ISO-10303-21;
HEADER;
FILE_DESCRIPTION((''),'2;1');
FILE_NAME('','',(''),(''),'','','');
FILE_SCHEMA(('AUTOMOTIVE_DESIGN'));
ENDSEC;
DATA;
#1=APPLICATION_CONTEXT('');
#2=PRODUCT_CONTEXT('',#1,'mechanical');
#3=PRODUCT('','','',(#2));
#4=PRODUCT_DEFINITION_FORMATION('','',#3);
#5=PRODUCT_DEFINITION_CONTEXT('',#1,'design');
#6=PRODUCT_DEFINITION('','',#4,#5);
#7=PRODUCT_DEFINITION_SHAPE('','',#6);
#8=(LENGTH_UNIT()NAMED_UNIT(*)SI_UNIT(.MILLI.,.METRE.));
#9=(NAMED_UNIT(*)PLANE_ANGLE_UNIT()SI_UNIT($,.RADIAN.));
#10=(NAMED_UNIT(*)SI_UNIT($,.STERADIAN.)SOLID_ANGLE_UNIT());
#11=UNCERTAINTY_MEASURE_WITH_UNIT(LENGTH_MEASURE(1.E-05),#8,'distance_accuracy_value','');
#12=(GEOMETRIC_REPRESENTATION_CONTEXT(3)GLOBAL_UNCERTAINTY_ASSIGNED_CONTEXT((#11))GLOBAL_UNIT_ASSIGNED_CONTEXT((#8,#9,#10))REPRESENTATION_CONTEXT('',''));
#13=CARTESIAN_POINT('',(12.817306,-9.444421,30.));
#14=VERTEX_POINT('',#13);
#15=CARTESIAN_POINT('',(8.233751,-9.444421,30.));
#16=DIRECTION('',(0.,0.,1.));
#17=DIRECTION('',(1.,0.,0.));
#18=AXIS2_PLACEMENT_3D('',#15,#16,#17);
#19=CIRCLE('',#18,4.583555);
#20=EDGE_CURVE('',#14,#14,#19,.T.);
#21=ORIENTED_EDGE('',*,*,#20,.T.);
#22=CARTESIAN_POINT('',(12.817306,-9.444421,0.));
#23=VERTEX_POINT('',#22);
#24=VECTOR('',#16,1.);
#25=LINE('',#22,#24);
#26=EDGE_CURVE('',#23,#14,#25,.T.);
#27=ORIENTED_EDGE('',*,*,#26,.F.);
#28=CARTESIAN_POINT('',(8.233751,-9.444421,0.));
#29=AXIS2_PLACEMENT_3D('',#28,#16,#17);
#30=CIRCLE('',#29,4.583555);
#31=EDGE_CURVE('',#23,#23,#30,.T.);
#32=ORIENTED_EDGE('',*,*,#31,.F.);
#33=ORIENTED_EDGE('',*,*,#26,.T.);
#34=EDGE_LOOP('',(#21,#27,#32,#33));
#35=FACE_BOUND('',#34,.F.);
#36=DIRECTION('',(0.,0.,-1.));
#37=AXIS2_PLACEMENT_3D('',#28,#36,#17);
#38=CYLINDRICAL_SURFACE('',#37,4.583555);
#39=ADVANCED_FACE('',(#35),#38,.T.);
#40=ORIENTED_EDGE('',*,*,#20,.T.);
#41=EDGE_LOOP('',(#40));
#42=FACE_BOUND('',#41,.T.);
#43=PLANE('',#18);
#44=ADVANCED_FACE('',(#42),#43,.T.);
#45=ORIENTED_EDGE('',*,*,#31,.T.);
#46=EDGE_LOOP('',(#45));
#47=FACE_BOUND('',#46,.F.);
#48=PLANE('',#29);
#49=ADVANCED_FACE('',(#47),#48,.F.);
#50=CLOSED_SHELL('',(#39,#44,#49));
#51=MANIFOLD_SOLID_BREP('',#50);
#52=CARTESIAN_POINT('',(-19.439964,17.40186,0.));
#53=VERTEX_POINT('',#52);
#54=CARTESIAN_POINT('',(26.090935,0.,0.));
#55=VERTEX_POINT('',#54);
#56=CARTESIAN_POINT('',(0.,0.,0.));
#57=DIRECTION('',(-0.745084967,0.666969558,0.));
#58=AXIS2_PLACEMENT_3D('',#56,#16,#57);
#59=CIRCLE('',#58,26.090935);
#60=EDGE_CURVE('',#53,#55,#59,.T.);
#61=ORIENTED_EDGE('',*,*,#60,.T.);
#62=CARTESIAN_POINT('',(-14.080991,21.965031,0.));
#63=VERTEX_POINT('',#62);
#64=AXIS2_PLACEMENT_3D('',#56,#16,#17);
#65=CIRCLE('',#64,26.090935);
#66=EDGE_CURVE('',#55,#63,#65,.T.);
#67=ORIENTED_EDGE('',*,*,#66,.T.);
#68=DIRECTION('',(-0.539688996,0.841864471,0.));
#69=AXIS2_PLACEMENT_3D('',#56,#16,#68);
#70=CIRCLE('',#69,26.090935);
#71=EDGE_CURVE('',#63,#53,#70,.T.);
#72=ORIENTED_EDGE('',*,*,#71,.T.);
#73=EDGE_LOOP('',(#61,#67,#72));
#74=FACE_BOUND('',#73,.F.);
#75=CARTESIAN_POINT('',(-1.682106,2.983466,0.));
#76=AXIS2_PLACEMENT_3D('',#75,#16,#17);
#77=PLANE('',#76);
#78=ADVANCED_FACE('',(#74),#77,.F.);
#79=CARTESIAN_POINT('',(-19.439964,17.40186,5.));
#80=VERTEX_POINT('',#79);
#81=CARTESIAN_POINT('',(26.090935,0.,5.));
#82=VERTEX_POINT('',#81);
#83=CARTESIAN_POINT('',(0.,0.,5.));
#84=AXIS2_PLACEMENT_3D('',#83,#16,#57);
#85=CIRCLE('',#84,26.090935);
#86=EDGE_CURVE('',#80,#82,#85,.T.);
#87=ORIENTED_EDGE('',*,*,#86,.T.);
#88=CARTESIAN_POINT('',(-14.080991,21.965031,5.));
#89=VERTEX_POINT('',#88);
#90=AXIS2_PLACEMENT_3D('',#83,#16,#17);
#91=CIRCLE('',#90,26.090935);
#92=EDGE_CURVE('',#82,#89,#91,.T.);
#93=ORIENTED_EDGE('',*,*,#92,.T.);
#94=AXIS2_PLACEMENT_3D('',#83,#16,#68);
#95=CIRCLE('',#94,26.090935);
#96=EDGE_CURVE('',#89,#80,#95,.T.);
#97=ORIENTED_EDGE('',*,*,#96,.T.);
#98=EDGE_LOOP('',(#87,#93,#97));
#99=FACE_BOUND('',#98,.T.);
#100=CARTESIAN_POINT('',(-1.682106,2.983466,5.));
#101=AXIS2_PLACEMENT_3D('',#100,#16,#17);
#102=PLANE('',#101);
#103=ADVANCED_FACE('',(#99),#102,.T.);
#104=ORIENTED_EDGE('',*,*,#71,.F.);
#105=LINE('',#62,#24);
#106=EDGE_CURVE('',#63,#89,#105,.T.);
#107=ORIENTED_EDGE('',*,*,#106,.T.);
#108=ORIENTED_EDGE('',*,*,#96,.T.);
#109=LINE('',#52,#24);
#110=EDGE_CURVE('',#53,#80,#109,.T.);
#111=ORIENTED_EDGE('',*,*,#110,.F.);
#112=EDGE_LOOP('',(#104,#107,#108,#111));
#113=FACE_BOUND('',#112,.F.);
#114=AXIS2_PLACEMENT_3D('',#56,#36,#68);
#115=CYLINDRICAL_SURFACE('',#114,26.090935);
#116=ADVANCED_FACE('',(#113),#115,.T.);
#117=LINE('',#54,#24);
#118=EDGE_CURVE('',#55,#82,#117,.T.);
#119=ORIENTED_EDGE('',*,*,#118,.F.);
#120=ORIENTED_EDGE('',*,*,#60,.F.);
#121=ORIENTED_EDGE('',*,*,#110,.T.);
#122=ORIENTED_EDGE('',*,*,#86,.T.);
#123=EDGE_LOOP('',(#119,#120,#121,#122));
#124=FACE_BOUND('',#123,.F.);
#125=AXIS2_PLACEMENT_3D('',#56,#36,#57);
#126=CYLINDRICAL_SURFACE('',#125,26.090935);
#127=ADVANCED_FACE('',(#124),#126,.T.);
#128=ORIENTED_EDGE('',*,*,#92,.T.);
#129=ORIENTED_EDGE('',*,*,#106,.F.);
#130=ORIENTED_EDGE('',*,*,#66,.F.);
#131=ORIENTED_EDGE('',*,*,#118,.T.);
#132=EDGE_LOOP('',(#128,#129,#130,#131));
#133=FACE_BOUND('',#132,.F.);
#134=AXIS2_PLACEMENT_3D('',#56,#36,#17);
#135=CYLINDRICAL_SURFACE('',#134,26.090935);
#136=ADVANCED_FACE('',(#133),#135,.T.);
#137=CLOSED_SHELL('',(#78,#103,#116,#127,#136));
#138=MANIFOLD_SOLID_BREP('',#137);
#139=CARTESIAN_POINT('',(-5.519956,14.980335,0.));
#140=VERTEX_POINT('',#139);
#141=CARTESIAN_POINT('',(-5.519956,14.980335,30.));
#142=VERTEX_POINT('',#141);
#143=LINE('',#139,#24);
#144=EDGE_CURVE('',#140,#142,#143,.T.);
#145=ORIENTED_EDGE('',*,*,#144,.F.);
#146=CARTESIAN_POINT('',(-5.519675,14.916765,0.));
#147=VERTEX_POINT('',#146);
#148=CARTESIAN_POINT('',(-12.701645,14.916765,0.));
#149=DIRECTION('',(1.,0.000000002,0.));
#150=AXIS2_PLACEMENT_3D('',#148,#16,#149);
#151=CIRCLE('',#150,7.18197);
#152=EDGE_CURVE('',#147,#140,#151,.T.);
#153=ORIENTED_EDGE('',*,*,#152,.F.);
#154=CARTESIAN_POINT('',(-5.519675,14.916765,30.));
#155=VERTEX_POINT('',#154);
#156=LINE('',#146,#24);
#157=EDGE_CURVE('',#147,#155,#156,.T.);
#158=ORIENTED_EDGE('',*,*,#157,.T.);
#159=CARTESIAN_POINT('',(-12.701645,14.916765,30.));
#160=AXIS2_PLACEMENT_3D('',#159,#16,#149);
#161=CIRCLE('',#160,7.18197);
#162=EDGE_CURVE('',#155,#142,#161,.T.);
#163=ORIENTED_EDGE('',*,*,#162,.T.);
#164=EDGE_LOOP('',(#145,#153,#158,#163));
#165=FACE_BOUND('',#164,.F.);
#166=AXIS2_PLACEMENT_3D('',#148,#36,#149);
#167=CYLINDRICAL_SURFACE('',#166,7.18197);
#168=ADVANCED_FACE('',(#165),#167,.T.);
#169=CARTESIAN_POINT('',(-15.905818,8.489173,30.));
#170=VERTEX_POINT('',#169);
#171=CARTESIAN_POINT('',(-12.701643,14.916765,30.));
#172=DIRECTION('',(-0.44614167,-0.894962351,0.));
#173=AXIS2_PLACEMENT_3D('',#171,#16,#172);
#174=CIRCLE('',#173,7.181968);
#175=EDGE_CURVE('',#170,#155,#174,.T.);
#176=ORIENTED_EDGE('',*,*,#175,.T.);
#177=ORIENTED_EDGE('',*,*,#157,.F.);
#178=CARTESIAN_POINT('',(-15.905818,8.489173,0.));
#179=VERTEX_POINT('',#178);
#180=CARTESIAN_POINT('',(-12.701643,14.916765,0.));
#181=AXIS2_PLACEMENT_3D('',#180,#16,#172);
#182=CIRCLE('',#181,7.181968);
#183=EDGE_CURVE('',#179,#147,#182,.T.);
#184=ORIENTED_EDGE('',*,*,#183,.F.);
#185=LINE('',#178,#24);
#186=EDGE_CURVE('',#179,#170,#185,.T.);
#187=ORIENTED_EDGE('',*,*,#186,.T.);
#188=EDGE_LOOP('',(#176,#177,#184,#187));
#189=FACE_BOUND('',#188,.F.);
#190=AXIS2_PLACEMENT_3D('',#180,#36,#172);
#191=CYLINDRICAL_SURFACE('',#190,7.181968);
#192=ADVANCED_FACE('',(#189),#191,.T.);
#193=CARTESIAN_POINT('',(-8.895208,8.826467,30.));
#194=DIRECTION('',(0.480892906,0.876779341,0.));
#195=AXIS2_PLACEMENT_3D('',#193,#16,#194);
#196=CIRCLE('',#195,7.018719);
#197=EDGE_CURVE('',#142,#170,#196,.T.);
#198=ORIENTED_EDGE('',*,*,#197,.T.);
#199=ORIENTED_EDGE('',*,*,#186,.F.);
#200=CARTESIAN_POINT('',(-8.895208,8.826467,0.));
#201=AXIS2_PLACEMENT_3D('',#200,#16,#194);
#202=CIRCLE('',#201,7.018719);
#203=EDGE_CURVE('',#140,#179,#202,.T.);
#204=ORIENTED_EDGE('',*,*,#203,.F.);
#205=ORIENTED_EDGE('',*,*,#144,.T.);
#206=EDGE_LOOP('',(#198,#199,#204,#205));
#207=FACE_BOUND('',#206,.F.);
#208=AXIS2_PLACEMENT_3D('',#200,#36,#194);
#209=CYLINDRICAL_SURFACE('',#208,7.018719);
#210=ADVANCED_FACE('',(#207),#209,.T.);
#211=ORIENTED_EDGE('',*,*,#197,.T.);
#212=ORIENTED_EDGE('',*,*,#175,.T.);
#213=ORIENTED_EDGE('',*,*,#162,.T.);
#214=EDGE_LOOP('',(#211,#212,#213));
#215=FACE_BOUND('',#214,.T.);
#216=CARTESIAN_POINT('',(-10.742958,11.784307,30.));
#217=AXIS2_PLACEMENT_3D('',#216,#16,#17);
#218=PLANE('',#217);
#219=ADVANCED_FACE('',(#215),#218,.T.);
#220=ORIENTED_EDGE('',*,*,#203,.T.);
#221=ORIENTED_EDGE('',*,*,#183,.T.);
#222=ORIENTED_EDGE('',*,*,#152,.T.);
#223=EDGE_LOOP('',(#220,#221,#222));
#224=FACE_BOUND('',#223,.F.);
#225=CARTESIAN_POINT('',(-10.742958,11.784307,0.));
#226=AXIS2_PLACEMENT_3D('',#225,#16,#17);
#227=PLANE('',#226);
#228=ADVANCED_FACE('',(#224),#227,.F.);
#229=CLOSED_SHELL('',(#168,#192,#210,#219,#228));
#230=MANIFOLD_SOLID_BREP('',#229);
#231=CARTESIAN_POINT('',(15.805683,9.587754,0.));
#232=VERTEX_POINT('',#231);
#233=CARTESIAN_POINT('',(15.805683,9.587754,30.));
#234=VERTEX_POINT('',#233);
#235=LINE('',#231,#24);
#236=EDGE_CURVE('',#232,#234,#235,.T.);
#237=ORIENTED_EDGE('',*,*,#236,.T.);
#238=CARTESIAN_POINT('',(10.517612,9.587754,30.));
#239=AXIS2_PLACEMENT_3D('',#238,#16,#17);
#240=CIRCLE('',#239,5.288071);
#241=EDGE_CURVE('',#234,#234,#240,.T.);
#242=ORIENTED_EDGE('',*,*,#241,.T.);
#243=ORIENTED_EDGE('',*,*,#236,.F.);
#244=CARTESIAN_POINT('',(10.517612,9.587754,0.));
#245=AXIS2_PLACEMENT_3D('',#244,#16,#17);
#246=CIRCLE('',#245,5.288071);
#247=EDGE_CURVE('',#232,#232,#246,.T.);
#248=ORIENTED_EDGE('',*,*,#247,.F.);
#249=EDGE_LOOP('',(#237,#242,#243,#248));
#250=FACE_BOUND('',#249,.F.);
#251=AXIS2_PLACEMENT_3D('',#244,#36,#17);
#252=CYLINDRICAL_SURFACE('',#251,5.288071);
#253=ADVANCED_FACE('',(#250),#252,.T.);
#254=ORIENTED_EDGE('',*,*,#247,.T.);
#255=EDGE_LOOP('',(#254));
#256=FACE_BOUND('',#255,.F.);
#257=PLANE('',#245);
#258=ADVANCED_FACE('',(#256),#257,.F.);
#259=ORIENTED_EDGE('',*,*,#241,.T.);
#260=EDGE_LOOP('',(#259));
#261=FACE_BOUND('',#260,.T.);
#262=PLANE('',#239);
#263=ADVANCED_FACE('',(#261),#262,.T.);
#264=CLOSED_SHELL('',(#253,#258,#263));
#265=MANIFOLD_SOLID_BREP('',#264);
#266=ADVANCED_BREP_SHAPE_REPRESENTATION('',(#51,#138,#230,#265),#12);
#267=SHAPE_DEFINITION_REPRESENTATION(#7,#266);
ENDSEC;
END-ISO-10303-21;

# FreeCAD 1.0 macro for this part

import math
import FreeCAD as App
import Part
import Sketcher
from FreeCAD import Vector

doc = App.newDocument("Part")
body = doc.addObject("PartDesign::Body", "Body")

# Sketch on XY plane
sketch1 = body.newObject("Sketcher::SketchObject", "Sketch")
sketch1.AttachmentSupport = (doc.getObject("XY_Plane"), [""])
sketch1.MapMode = "FlatFace"
sketch1.addGeometry(Part.Circle(Vector(11, 10, 0), Vector(0, 0, 1), 5), False)
sketch1.addConstraint([
    Sketcher.Constraint("Diameter", 0, 10.576142),
    Sketcher.Constraint("DistanceX", -1, 1, 0, 3, 10.517612),
    Sketcher.Constraint("DistanceY", -1, 1, 0, 3, 9.587754),
])
pad1 = body.newObject("PartDesign::Pad", "Pad")
pad1.Profile = sketch1
pad1.Length = 30
body2 = doc.addObject("PartDesign::Body", "Body001")

# Sketch on XY plane
sketch2 = body2.newObject("Sketcher::SketchObject", "Sketch001")
sketch2.AttachmentSupport = (doc.getObject("XY_Plane001"), [""])
sketch2.MapMode = "FlatFace"
sketch2.addGeometry(Part.Circle(Vector(8.2, -9.4, 0), Vector(0, 0, 1), 4.6), False)
sketch2.addConstraint([
    Sketcher.Constraint("Diameter", 0, 9.16711),
    Sketcher.Constraint("DistanceX", -1, 1, 0, 3, 8.233751),
    Sketcher.Constraint("DistanceY", 0, 3, -1, 1, 9.444421),
])
pad2 = body2.newObject("PartDesign::Pad", "Pad001")
pad2.Profile = sketch2
pad2.Length = 30
body3 = doc.addObject("PartDesign::Body", "Body002")

# Sketch on XY plane
sketch3 = body3.newObject("Sketcher::SketchObject", "Sketch002")
sketch3.AttachmentSupport = (doc.getObject("XY_Plane002"), [""])
sketch3.MapMode = "FlatFace"
sketch3.addGeometry([
    Part.ArcOfCircle(Part.Circle(Vector(-12.7, 14.92, 0), Vector(0, 0, 1), 7.18), math.radians(0), math.radians(0.51)),
    Part.ArcOfCircle(Part.Circle(Vector(-8.9, 8.83, 0), Vector(0, 0, 1), 7.02), math.radians(61), math.radians(183)),
    Part.ArcOfCircle(Part.Circle(Vector(-12.7, 14.92, 0), Vector(0, 0, 1), 7.18), math.radians(-116), math.radians(0)),
], False)
sketch3.addConstraint([
    Sketcher.Constraint("Coincident", 0, 2, 1, 1),
    Sketcher.Constraint("Coincident", 1, 2, 2, 1),
    Sketcher.Constraint("Tangent", 2, 2, 0, 1),
    Sketcher.Constraint("Equal", 0, 2),
    Sketcher.Constraint("Horizontal", 0, 3, 2, 2),
    Sketcher.Constraint("Radius", 0, 7.18197),
    Sketcher.Constraint("Radius", 1, 7.018719),
    Sketcher.Constraint("DistanceX", 1, 3, -1, 1, 8.895208),
    Sketcher.Constraint("DistanceY", 2, 3, 0, 2, 0.063571),
    Sketcher.Constraint("DistanceY", 1, 2, 0, 3, 6.427591),
    Sketcher.Constraint("DistanceY", -1, 1, 0, 3, 14.916765),
])
pad3 = body3.newObject("PartDesign::Pad", "Pad002")
pad3.Profile = sketch3
pad3.Length = 30
body4 = doc.addObject("PartDesign::Body", "Body003")

# Sketch on XY plane
sketch4 = body4.newObject("Sketcher::SketchObject", "Sketch003")
sketch4.AttachmentSupport = (doc.getObject("XY_Plane003"), [""])
sketch4.MapMode = "FlatFace"
sketch4.addGeometry([
    Part.ArcOfCircle(Part.Circle(Vector(0, 0, 0), Vector(0, 0, 1), 26), math.radians(138), math.radians(360)),
    Part.ArcOfCircle(Part.Circle(Vector(0, 0, 0), Vector(0, 0, 1), 26), math.radians(0), math.radians(123)),
    Part.ArcOfCircle(Part.Circle(Vector(0, 0, 0), Vector(0, 0, 1), 26), math.radians(122.66), math.radians(138.17)),
], False)
sketch4.addConstraint([
    Sketcher.Constraint("Tangent", 0, 2, 1, 1),
    Sketcher.Constraint("Tangent", 1, 2, 2, 1),
    Sketcher.Constraint("Tangent", 2, 2, 0, 1),
    Sketcher.Constraint("Coincident", 0, 3, -1, 1),
    Sketcher.Constraint("PointOnObject", 0, 2, -1),
    Sketcher.Constraint("Radius", 0, 26.090935),
    Sketcher.Constraint("DistanceX", 2, 2, 0, 2, 45.530899),
    Sketcher.Constraint("DistanceX", 1, 2, -1, 1, 14.080991),
])
pad4 = body4.newObject("PartDesign::Pad", "Pad003")
pad4.Profile = sketch4
pad4.Length = 5

doc.recompute()
